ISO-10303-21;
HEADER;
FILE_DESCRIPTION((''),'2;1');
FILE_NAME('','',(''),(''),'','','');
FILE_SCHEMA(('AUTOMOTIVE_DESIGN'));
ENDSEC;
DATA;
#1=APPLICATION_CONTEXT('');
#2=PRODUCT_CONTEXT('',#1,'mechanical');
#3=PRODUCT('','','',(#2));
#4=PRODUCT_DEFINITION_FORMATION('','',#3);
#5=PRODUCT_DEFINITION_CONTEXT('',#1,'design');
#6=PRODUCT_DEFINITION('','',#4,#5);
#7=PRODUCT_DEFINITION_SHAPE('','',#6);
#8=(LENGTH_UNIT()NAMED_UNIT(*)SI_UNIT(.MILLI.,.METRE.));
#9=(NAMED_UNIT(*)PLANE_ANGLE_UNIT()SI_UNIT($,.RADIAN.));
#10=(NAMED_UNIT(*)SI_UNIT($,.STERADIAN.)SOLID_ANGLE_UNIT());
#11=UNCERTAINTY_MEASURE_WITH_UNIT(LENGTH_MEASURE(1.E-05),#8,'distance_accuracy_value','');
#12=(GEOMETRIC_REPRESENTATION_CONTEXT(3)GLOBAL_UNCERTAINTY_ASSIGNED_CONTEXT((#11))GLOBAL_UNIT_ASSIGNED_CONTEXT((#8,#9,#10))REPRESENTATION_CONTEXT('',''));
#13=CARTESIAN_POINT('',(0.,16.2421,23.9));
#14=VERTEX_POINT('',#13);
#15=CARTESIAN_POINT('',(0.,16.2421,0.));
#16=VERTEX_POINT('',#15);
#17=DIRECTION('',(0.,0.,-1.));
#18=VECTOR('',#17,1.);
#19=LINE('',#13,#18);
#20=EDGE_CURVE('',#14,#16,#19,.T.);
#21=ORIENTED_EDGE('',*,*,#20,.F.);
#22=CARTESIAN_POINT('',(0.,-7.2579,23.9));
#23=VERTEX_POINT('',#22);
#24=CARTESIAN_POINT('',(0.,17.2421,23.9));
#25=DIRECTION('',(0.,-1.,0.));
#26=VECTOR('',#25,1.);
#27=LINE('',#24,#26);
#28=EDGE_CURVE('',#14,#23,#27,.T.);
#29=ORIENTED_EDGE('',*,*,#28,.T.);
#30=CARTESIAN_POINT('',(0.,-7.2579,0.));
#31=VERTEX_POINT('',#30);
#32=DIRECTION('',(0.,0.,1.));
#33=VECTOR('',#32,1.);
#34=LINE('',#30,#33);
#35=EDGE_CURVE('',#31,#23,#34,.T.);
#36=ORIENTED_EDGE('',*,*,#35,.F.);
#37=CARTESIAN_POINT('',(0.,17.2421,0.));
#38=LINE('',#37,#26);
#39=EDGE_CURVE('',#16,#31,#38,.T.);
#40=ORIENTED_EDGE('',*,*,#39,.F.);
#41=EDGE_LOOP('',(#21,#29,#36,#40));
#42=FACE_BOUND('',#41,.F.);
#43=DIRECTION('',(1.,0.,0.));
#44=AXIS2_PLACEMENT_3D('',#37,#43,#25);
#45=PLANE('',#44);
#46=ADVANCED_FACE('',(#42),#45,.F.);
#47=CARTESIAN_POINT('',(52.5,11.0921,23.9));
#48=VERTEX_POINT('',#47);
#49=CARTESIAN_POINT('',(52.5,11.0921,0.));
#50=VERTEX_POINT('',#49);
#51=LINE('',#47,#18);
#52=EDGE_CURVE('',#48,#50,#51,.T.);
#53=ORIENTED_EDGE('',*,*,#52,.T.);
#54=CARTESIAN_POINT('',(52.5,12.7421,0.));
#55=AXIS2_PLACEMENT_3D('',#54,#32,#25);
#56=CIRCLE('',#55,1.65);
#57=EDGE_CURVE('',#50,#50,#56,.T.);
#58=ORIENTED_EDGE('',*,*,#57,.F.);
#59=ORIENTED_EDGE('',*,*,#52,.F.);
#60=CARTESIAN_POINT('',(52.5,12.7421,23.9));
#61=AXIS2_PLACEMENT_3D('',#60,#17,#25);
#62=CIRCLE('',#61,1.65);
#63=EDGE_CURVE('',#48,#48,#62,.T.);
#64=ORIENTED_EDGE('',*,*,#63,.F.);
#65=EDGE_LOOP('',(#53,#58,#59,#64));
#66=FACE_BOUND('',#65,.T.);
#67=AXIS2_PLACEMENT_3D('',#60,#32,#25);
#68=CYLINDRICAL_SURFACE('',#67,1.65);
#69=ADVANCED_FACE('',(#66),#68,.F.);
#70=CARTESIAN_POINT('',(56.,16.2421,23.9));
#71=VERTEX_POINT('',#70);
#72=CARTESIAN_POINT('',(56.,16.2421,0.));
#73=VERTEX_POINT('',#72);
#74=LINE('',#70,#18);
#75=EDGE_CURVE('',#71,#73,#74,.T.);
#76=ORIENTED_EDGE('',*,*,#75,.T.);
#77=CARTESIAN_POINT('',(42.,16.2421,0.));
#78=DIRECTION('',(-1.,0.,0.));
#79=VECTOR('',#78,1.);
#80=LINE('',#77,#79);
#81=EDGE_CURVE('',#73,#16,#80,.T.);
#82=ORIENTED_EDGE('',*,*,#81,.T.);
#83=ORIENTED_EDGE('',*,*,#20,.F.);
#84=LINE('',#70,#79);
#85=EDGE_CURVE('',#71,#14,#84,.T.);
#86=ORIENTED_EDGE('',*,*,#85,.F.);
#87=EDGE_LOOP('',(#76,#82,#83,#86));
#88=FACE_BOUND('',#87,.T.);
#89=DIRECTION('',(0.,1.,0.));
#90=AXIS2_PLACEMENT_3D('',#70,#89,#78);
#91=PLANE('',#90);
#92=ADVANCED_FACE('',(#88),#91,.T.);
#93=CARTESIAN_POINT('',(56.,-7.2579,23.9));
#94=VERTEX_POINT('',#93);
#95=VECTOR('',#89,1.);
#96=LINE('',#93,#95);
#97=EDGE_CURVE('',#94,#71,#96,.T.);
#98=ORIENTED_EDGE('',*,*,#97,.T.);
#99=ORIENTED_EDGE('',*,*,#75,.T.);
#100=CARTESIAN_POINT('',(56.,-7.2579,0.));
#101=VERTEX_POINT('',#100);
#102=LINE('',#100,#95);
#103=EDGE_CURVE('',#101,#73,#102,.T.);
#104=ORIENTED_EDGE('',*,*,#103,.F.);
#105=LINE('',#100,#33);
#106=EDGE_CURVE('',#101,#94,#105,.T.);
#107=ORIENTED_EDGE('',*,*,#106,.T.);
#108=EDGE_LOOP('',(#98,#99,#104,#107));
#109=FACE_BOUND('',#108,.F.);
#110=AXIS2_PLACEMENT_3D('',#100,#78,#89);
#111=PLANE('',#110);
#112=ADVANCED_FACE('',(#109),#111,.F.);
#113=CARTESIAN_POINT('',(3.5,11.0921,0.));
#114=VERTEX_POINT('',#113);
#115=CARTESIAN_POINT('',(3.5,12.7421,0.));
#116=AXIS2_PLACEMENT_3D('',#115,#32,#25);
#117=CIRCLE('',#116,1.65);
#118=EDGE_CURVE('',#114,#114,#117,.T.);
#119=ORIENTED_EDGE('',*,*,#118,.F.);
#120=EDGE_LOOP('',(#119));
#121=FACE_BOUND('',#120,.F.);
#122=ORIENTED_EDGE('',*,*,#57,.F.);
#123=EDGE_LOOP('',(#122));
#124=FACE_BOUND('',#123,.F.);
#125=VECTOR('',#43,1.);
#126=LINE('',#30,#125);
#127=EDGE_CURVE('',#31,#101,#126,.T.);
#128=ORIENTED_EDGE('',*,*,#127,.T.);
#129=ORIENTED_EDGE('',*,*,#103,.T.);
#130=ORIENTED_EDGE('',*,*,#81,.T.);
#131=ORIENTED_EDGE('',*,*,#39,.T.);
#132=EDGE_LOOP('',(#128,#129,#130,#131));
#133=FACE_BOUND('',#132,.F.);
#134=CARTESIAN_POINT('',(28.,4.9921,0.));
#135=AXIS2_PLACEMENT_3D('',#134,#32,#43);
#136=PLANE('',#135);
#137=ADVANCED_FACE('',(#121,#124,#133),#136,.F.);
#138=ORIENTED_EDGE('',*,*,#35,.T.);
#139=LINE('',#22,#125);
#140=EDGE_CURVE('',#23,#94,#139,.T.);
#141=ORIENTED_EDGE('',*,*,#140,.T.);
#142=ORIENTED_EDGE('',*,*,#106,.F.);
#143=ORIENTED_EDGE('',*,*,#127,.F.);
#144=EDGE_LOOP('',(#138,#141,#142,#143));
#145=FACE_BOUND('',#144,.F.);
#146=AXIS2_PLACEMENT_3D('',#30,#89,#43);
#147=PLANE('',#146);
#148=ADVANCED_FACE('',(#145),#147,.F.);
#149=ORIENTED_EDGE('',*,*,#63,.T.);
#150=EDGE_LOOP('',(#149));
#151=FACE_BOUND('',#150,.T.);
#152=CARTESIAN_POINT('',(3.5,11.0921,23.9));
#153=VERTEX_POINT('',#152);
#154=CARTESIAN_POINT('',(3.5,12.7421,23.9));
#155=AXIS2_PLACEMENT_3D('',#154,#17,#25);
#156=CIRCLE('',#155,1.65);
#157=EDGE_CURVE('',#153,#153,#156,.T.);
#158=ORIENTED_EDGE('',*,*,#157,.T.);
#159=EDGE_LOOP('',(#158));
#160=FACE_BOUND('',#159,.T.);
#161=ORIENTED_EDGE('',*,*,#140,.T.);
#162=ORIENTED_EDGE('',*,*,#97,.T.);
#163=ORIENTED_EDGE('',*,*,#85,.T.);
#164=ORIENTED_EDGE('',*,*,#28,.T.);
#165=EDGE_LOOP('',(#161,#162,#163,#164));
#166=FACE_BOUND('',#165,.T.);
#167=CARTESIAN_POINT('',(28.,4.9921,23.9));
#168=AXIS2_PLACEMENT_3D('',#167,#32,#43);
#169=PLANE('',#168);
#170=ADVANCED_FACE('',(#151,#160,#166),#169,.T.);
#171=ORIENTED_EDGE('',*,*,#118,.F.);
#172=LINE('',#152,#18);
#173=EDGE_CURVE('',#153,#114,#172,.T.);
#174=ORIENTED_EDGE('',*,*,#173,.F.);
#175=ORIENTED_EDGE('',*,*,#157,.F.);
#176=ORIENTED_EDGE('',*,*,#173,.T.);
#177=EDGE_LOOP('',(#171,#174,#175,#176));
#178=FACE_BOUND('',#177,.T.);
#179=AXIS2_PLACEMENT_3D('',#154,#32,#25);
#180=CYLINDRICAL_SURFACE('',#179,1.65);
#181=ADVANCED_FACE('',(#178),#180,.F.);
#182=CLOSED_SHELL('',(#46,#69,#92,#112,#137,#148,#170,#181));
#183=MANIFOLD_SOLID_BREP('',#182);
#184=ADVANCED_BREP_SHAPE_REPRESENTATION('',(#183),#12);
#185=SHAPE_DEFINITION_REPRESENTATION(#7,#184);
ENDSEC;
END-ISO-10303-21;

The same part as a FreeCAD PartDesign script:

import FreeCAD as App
import Part
import Sketcher

V = App.Vector

doc = App.newDocument("Part")
body = doc.addObject("PartDesign::Body", "Body")

sketch1 = body.newObject("Sketcher::SketchObject", "Sketch")
sketch1.AttachmentSupport = (doc.getObject("XY_Plane"), [""])
sketch1.MapMode = "FlatFace"
sketch1.addGeometry([
    Part.LineSegment(V(0, 17, 0), V(0, -7, 0)),
    Part.LineSegment(V(0, -7, 0), V(56, -7, 0)),
    Part.LineSegment(V(56, -7, 0), V(56, 17, 0)),
    Part.LineSegment(V(56, 17, 0), V(0, 17, 0)),
], False)
sketch1.addConstraint([
    Sketcher.Constraint("Coincident", 0, 2, 1, 1),
    Sketcher.Constraint("Coincident", 1, 2, 2, 1),
    Sketcher.Constraint("Coincident", 2, 2, 3, 1),
    Sketcher.Constraint("Coincident", 3, 2, 0, 1),
    Sketcher.Constraint("Vertical", 0),
    Sketcher.Constraint("Horizontal", 1),
    Sketcher.Constraint("Vertical", 2),
    Sketcher.Constraint("Horizontal", 3),
    Sketcher.Constraint("PointOnObject", 0, 2, -2),
    Sketcher.Constraint("DistanceX", 1, 1, 1, 2, 56.0),
    Sketcher.Constraint("DistanceY", 0, 2, 0, 1, 24.5),
    Sketcher.Constraint("DistanceY", 0, 2, -1, 1, 7.258),
])
pad1 = body.newObject("PartDesign::Pad", "Pad")
pad1.Profile = sketch1
pad1.Length = 23.9

sketch2 = body.newObject("Sketcher::SketchObject", "Sketch001")
sketch2.AttachmentSupport = (doc.getObject("XY_Plane"), [""])
sketch2.MapMode = "FlatFace"
sketch2.AttachmentOffset = App.Placement(V(0, 0, 23.9), App.Rotation())
sketch2.addGeometry(Part.Circle(V(52.5, 12.7, 0), V(0, 0, 1), 1.6), False)
sketch2.addConstraint([
    Sketcher.Constraint("Diameter", 0, 3.3),
    Sketcher.Constraint("DistanceX", -1, 1, 0, 3, 52.5),
    Sketcher.Constraint("DistanceY", -1, 1, 0, 3, 12.742),
])
doc.recompute()
hole = body.newObject("PartDesign::Hole", "Hole")
hole.Profile = sketch2
hole.ThreadType = "None"
hole.Diameter = 3.3
hole.DepthType = "ThroughAll"

sketch3 = body.newObject("Sketcher::SketchObject", "Sketch002")
sketch3.AttachmentSupport = (doc.getObject("XY_Plane"), [""])
sketch3.MapMode = "FlatFace"
sketch3.AttachmentOffset = App.Placement(V(0, 0, 23.9), App.Rotation())
sketch3.addGeometry(Part.Circle(V(3.5, 12.7, 0), V(0, 0, 1), 1.6), False)
sketch3.addConstraint([
    Sketcher.Constraint("Diameter", 0, 3.3),
    Sketcher.Constraint("DistanceX", -1, 1, 0, 3, 3.5),
    Sketcher.Constraint("DistanceY", -1, 1, 0, 3, 12.742),
])
doc.recompute()
hole2 = body.newObject("PartDesign::Hole", "Hole001")
hole2.Profile = sketch3
hole2.ThreadType = "None"
hole2.Diameter = 3.3
hole2.DepthType = "ThroughAll"

sketch4 = body.newObject("Sketcher::SketchObject", "Sketch003")
sketch4.AttachmentSupport = (doc.getObject("XY_Plane"), [""])
sketch4.MapMode = "FlatFace"
sketch4.AttachmentOffset = App.Placement(V(0, 0, 23.9), App.Rotation())
sketch4.addGeometry([
    Part.LineSegment(V(56, 17.2, 0), V(0, 17.2, 0)),
    Part.LineSegment(V(0, 17.2, 0), V(0, 16.2, 0)),
    Part.LineSegment(V(0, 16.2, 0), V(56, 16.2, 0)),
    Part.LineSegment(V(56, 16.2, 0), V(56, 17.2, 0)),
], False)
sketch4.addConstraint([
    Sketcher.Constraint("Coincident", 0, 2, 1, 1),
    Sketcher.Constraint("Coincident", 1, 2, 2, 1),
    Sketcher.Constraint("Coincident", 2, 2, 3, 1),
    Sketcher.Constraint("Coincident", 3, 2, 0, 1),
    Sketcher.Constraint("Horizontal", 0),
    Sketcher.Constraint("Vertical", 1),
    Sketcher.Constraint("Horizontal", 2),
    Sketcher.Constraint("Vertical", 3),
    Sketcher.Constraint("PointOnObject", 0, 2, -2),
    Sketcher.Constraint("DistanceX", 0, 2, 0, 1, 56.0),
    Sketcher.Constraint("DistanceY", 1, 2, 1, 1, 1.0),
    Sketcher.Constraint("DistanceY", -1, 1, 0, 2, 17.242),
])
pocket1 = body.newObject("PartDesign::Pocket", "Pocket")
pocket1.Profile = sketch4
pocket1.Type = "ThroughAll"

doc.recompute()
